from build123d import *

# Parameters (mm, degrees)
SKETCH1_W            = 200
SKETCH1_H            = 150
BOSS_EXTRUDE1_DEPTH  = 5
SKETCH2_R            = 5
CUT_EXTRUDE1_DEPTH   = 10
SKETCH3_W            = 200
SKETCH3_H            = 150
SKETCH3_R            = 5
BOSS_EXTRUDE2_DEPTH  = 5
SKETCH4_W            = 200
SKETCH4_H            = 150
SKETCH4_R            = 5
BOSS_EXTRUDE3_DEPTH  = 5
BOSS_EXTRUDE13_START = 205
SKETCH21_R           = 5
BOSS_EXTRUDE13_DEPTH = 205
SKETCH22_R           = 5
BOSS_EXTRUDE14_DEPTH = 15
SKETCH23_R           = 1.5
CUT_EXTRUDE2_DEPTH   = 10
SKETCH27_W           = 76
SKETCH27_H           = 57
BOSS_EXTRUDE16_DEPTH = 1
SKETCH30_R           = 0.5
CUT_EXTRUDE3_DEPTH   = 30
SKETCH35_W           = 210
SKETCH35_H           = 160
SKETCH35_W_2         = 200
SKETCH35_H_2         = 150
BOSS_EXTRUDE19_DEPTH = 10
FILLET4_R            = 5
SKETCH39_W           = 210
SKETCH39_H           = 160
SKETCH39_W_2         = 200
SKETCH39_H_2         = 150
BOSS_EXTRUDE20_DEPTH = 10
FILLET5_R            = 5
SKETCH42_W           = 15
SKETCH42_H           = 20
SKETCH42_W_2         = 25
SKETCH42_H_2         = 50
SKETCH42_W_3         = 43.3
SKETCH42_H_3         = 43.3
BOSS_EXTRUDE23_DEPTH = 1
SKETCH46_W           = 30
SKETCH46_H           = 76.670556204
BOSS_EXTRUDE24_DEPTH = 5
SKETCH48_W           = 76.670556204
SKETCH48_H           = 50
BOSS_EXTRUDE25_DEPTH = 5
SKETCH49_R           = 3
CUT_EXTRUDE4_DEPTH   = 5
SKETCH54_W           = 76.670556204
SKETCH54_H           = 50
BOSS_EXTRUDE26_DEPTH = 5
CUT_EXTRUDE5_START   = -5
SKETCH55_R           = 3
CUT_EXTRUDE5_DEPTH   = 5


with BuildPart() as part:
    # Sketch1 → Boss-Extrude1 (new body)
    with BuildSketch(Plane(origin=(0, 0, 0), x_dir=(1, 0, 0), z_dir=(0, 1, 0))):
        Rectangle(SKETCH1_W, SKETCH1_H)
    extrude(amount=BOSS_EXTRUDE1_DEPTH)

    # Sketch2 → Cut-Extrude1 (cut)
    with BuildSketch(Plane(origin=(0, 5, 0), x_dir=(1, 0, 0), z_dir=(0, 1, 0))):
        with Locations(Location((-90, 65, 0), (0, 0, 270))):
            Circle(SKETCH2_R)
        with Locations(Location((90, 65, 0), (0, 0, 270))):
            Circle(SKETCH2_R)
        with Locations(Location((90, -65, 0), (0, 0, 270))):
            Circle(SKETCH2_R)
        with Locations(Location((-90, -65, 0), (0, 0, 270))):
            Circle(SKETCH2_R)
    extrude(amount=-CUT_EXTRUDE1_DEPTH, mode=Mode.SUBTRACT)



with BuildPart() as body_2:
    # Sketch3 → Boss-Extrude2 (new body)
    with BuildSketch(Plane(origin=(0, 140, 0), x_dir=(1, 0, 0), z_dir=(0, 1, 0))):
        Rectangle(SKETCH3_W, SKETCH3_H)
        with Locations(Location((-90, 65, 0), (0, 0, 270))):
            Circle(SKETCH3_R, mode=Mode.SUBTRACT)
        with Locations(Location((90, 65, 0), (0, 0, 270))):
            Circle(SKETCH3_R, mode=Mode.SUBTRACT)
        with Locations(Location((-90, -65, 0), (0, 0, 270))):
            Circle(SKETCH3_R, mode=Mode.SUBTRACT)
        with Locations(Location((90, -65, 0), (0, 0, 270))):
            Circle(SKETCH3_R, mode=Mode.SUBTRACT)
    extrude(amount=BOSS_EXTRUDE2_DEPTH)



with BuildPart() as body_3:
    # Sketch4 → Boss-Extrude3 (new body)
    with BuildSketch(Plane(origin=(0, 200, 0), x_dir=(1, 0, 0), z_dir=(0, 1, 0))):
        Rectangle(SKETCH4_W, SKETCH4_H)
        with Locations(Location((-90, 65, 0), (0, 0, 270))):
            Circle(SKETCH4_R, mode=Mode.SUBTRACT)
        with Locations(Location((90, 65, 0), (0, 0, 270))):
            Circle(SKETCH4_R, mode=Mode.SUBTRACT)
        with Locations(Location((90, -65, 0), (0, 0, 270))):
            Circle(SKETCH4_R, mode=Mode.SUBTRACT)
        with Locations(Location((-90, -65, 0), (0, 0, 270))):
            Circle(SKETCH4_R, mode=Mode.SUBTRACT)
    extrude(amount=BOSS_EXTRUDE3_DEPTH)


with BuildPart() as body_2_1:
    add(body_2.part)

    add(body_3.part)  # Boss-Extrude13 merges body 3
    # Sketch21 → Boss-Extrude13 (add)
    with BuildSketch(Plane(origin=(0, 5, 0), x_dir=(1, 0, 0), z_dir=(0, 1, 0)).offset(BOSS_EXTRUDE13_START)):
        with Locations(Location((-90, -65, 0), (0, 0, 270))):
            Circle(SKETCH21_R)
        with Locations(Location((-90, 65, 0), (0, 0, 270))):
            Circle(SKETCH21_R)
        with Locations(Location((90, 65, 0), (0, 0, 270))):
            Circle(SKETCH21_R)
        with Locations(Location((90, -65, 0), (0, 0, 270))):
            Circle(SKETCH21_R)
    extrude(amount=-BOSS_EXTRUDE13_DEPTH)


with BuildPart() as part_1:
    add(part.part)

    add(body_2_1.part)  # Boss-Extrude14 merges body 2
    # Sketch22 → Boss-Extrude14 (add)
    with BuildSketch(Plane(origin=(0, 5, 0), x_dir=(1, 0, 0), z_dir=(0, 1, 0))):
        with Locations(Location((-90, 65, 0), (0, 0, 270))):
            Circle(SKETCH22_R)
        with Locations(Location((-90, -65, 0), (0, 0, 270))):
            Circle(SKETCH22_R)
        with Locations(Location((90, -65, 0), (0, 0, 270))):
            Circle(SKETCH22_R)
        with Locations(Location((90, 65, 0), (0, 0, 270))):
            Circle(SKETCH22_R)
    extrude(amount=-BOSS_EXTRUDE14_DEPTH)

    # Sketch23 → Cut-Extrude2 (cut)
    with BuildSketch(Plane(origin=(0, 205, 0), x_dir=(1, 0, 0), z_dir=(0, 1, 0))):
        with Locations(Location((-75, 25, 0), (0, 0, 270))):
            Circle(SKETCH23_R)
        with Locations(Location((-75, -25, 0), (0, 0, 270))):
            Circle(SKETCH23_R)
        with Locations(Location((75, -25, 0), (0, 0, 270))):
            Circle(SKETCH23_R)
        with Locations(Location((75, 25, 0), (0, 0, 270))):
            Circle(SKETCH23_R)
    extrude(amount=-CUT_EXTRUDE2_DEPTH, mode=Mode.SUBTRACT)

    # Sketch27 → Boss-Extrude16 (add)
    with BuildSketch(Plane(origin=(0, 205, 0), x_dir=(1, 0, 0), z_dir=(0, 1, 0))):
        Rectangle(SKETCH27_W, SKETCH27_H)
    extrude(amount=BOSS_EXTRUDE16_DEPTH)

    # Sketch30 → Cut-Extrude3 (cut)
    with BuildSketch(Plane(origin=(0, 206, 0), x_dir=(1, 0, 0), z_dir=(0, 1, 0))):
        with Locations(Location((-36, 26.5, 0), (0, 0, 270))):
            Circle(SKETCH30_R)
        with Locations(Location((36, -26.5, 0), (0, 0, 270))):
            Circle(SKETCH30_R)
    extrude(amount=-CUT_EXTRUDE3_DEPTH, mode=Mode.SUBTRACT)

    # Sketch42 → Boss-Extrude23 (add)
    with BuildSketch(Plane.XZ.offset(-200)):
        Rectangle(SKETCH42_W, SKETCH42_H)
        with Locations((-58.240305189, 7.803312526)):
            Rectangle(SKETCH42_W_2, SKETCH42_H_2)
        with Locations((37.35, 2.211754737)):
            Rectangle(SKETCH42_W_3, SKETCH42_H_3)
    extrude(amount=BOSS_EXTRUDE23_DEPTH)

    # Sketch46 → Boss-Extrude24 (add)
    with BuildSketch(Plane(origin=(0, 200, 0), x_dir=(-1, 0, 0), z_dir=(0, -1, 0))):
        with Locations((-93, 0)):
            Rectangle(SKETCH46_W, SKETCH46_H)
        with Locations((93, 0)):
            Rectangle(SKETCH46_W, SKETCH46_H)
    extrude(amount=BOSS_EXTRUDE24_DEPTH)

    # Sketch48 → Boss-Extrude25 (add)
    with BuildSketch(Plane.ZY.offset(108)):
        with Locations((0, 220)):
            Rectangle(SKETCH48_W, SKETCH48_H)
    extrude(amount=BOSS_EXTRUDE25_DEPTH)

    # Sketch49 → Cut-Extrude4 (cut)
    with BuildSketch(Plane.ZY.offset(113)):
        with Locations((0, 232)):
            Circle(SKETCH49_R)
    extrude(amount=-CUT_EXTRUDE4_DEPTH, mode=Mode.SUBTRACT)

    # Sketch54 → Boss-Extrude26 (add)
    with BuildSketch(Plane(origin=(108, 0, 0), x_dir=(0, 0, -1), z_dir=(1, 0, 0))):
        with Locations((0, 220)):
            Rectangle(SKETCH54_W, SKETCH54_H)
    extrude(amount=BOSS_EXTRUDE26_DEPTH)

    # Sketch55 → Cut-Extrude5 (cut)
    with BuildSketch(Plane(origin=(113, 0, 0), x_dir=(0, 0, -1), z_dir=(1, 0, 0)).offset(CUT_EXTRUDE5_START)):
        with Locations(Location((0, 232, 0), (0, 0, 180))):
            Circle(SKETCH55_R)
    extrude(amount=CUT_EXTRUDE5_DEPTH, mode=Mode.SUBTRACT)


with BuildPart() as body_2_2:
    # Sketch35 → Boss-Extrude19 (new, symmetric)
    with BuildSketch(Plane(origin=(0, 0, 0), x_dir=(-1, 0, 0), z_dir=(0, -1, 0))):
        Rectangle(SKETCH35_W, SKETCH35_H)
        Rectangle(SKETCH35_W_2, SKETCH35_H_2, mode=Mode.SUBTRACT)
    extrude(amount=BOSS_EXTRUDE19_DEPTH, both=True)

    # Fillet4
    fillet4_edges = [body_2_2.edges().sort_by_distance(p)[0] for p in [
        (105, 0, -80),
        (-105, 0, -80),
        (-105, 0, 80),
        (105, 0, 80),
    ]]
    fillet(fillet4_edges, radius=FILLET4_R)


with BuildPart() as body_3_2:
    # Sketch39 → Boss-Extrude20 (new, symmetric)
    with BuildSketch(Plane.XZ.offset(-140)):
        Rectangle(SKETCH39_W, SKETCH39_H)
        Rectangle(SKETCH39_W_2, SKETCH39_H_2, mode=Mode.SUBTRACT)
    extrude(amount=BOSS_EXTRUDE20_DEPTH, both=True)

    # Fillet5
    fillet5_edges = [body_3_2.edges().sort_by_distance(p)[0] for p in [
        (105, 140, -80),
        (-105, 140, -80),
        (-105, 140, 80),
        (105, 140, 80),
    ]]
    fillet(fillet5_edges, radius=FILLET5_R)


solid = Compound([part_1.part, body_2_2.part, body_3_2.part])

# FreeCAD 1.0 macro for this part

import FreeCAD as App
import Part
import Sketcher


def edges_at(feature, points):
    """Names of the edges that pass closest to the given points."""
    edges = feature.Shape.Edges
    near = lambda p: min(range(len(edges)), key=lambda i: edges[i].distToShape(Part.Vertex(*p))[0])
    return sorted({f"Edge{near(p) + 1}" for p in points})


def add_polygon(sketch, points):
    """Adds a closed chain of lines whose ends are joined by coincident constraints."""
    first, n = sketch.GeometryCount, len(points)
    for a, b in zip(points, points[1:] + points[:1]):
        sketch.addGeometry(Part.LineSegment(App.Vector(*a, 0), App.Vector(*b, 0)), False)
    for i in range(n):
        sketch.addConstraint(Sketcher.Constraint("Coincident", first + i, 2, first + (i + 1) % n, 1))

doc = App.newDocument("Part")
body = doc.addObject("PartDesign::Body", "Body")

# Sketch on XZ plane
sketch1 = doc.addObject("Sketcher::SketchObject", "Sketch")
body.addObject(sketch1)
sketch1.AttachmentSupport = (doc.XZ_Plane, [""])
sketch1.MapMode = "FlatFace"
add_polygon(sketch1, [(-100, -75), (-100, 75), (100, 75), (100, -75)])  # lines 0-3
sketch1.addConstraint([
    Sketcher.Constraint("Vertical", 0),
    Sketcher.Constraint("Horizontal", 1),
    Sketcher.Constraint("Vertical", 2),
    Sketcher.Constraint("Horizontal", 3),
    Sketcher.Constraint("Symmetric", 0, 2, 2, 2, -1, 1),
    Sketcher.Constraint("DistanceX", 1, 1, 1, 2, 200.0),
    Sketcher.Constraint("DistanceY", 0, 1, 0, 2, 150.0),
])
pad1 = doc.addObject("PartDesign::Pad", "Pad")
body.addObject(pad1)
pad1.Profile = sketch1
pad1.Length = 5
pad1.Reversed = True

# Sketch on XZ plane
sketch2 = doc.addObject("Sketcher::SketchObject", "Sketch001")
body.addObject(sketch2)
sketch2.AttachmentSupport = (doc.XZ_Plane, [""])
sketch2.MapMode = "FlatFace"
sketch2.AttachmentOffset = App.Placement(App.Vector(0, 0, -5), App.Rotation())
sketch2.addGeometry([
    Part.Circle(App.Vector(-90, -65, 0), App.Vector(0, 0, 1), 5),
    Part.Circle(App.Vector(90, -65, 0), App.Vector(0, 0, 1), 5),
    Part.Circle(App.Vector(90, 65, 0), App.Vector(0, 0, 1), 5),
    Part.Circle(App.Vector(-90, 65, 0), App.Vector(0, 0, 1), 5),
], False)
sketch2.addConstraint([
    Sketcher.Constraint("Equal", 0, 1),
    Sketcher.Constraint("Equal", 1, 2),
    Sketcher.Constraint("Equal", 2, 3),
    Sketcher.Constraint("Symmetric", 0, 3, 2, 3, -1, 1),
    Sketcher.Constraint("Symmetric", 1, 3, 3, 3, -1, 1),
    Sketcher.Constraint("Symmetric", 0, 3, 1, 3, -2),
    Sketcher.Constraint("Diameter", 0, 10.0),
    Sketcher.Constraint("DistanceX", 0, 3, -1, 1, 90.0),
    Sketcher.Constraint("DistanceY", 0, 3, -1, 1, 65.0),
])
pocket1 = doc.addObject("PartDesign::Pocket", "Pocket")
body.addObject(pocket1)
pocket1.Profile = sketch2
pocket1.Length = 10
pocket1.Reversed = True
body2 = doc.addObject("PartDesign::Body", "Body001")

# Sketch on XZ plane
sketch3 = doc.addObject("Sketcher::SketchObject", "Sketch002")
body2.addObject(sketch3)
sketch3.AttachmentSupport = (doc.getObject("XZ_Plane001"), [""])
sketch3.MapMode = "FlatFace"
sketch3.AttachmentOffset = App.Placement(App.Vector(0, 0, -140), App.Rotation())
add_polygon(sketch3, [(-100, -75), (-100, 75), (100, 75), (100, -75)])  # lines 0-3
sketch3.addGeometry(Part.Circle(App.Vector(-90, 65, 0), App.Vector(0, 0, 1), 5), False)  # 4
sketch3.addGeometry(Part.Circle(App.Vector(90, 65, 0), App.Vector(0, 0, 1), 5), False)  # 5
sketch3.addGeometry(Part.Circle(App.Vector(-90, -65, 0), App.Vector(0, 0, 1), 5), False)  # 6
sketch3.addGeometry(Part.Circle(App.Vector(90, -65, 0), App.Vector(0, 0, 1), 5), False)  # 7
sketch3.addConstraint([
    Sketcher.Constraint("Vertical", 0),
    Sketcher.Constraint("Horizontal", 1),
    Sketcher.Constraint("Vertical", 2),
    Sketcher.Constraint("Horizontal", 3),
    Sketcher.Constraint("Equal", 4, 5),
    Sketcher.Constraint("Equal", 5, 6),
    Sketcher.Constraint("Equal", 6, 7),
    Sketcher.Constraint("Symmetric", 5, 3, 6, 3, -1, 1),
    Sketcher.Constraint("Symmetric", 4, 3, 7, 3, -1, 1),
    Sketcher.Constraint("Symmetric", 0, 2, 2, 2, -1, 1),
    Sketcher.Constraint("Symmetric", 4, 3, 5, 3, -2),
    Sketcher.Constraint("Diameter", 4, 10.0),
    Sketcher.Constraint("DistanceX", 1, 1, 1, 2, 200.0),
    Sketcher.Constraint("DistanceY", 0, 1, 0, 2, 150.0),
    Sketcher.Constraint("DistanceX", 4, 3, -1, 1, 90.0),
    Sketcher.Constraint("DistanceY", -1, 1, 4, 3, 65.0),
])
pad2 = doc.addObject("PartDesign::Pad", "Pad001")
body2.addObject(pad2)
pad2.Profile = sketch3
pad2.Length = 5
pad2.Reversed = True
body3 = doc.addObject("PartDesign::Body", "Body002")

# Sketch on XZ plane
sketch4 = doc.addObject("Sketcher::SketchObject", "Sketch003")
body3.addObject(sketch4)
sketch4.AttachmentSupport = (doc.getObject("XZ_Plane002"), [""])
sketch4.MapMode = "FlatFace"
sketch4.AttachmentOffset = App.Placement(App.Vector(0, 0, -200), App.Rotation())
add_polygon(sketch4, [(-100, -75), (-100, 75), (100, 75), (100, -75)])  # lines 0-3
sketch4.addGeometry(Part.Circle(App.Vector(-90, 65, 0), App.Vector(0, 0, 1), 5), False)  # 4
sketch4.addGeometry(Part.Circle(App.Vector(90, 65, 0), App.Vector(0, 0, 1), 5), False)  # 5
sketch4.addGeometry(Part.Circle(App.Vector(-90, -65, 0), App.Vector(0, 0, 1), 5), False)  # 6
sketch4.addGeometry(Part.Circle(App.Vector(90, -65, 0), App.Vector(0, 0, 1), 5), False)  # 7
sketch4.addConstraint([
    Sketcher.Constraint("Vertical", 0),
    Sketcher.Constraint("Horizontal", 1),
    Sketcher.Constraint("Vertical", 2),
    Sketcher.Constraint("Horizontal", 3),
    Sketcher.Constraint("Equal", 4, 5),
    Sketcher.Constraint("Equal", 5, 6),
    Sketcher.Constraint("Equal", 6, 7),
    Sketcher.Constraint("Symmetric", 5, 3, 6, 3, -1, 1),
    Sketcher.Constraint("Symmetric", 4, 3, 7, 3, -1, 1),
    Sketcher.Constraint("Symmetric", 0, 2, 2, 2, -1, 1),
    Sketcher.Constraint("Symmetric", 4, 3, 5, 3, -2),
    Sketcher.Constraint("Diameter", 4, 10.0),
    Sketcher.Constraint("DistanceX", 1, 1, 1, 2, 200.0),
    Sketcher.Constraint("DistanceY", 0, 1, 0, 2, 150.0),
    Sketcher.Constraint("DistanceX", 4, 3, -1, 1, 90.0),
    Sketcher.Constraint("DistanceY", -1, 1, 4, 3, 65.0),
])
pad3 = doc.addObject("PartDesign::Pad", "Pad002")
body3.addObject(pad3)
pad3.Profile = sketch4
pad3.Length = 5
pad3.Reversed = True
body2.AllowCompound = True
doc.recompute()

boolean = doc.addObject("PartDesign::Boolean", "Boolean")
body2.addObject(boolean)
boolean.Type = "Fuse"
boolean.addObjects([body3])

# Sketch on XZ plane
sketch5 = doc.addObject("Sketcher::SketchObject", "Sketch004")
body2.addObject(sketch5)
sketch5.AttachmentSupport = (doc.getObject("XZ_Plane001"), [""])
sketch5.MapMode = "FlatFace"
sketch5.AttachmentOffset = App.Placement(App.Vector(0, 0, -210), App.Rotation())
sketch5.addGeometry([
    Part.Circle(App.Vector(-90, 65, 0), App.Vector(0, 0, 1), 5),
    Part.Circle(App.Vector(-90, -65, 0), App.Vector(0, 0, 1), 5),
    Part.Circle(App.Vector(90, -65, 0), App.Vector(0, 0, 1), 5),
    Part.Circle(App.Vector(90, 65, 0), App.Vector(0, 0, 1), 5),
], False)
sketch5.addConstraint([
    Sketcher.Constraint("Equal", 0, 1),
    Sketcher.Constraint("Equal", 1, 2),
    Sketcher.Constraint("Equal", 2, 3),
    Sketcher.Constraint("Symmetric", 0, 3, 2, 3, -1, 1),
    Sketcher.Constraint("Symmetric", 1, 3, 3, 3, -1, 1),
    Sketcher.Constraint("Symmetric", 1, 3, 2, 3, -2),
    Sketcher.Constraint("Diameter", 0, 10.0),
    Sketcher.Constraint("DistanceX", 0, 3, -1, 1, 90.0),
    Sketcher.Constraint("DistanceY", -1, 1, 0, 3, 65.0),
])
pad4 = doc.addObject("PartDesign::Pad", "Pad003")
body2.addObject(pad4)
pad4.Profile = sketch5
pad4.Length = 205
body.AllowCompound = True
doc.recompute()

boolean2 = doc.addObject("PartDesign::Boolean", "Boolean001")
body.addObject(boolean2)
boolean2.Type = "Fuse"
boolean2.addObjects([body2])

# Sketch on XZ plane
sketch6 = doc.addObject("Sketcher::SketchObject", "Sketch005")
body.addObject(sketch6)
sketch6.AttachmentSupport = (doc.XZ_Plane, [""])
sketch6.MapMode = "FlatFace"
sketch6.AttachmentOffset = App.Placement(App.Vector(0, 0, -5), App.Rotation())
sketch6.addGeometry([
    Part.Circle(App.Vector(-90, -65, 0), App.Vector(0, 0, 1), 5),
    Part.Circle(App.Vector(-90, 65, 0), App.Vector(0, 0, 1), 5),
    Part.Circle(App.Vector(90, 65, 0), App.Vector(0, 0, 1), 5),
    Part.Circle(App.Vector(90, -65, 0), App.Vector(0, 0, 1), 5),
], False)
sketch6.addConstraint([
    Sketcher.Constraint("Equal", 0, 1),
    Sketcher.Constraint("Equal", 1, 2),
    Sketcher.Constraint("Equal", 2, 3),
    Sketcher.Constraint("Symmetric", 0, 3, 2, 3, -1, 1),
    Sketcher.Constraint("Symmetric", 1, 3, 3, 3, -1, 1),
    Sketcher.Constraint("Symmetric", 1, 3, 2, 3, -2),
    Sketcher.Constraint("Diameter", 0, 10.0),
    Sketcher.Constraint("DistanceX", 0, 3, -1, 1, 90.0),
    Sketcher.Constraint("DistanceY", 0, 3, -1, 1, 65.0),
])
pad5 = doc.addObject("PartDesign::Pad", "Pad004")
body.addObject(pad5)
pad5.Profile = sketch6
pad5.Length = 15

# Sketch on XZ plane
sketch7 = doc.addObject("Sketcher::SketchObject", "Sketch006")
body.addObject(sketch7)
sketch7.AttachmentSupport = (doc.XZ_Plane, [""])
sketch7.MapMode = "FlatFace"
sketch7.AttachmentOffset = App.Placement(App.Vector(0, 0, -205), App.Rotation())
sketch7.addGeometry([
    Part.Circle(App.Vector(-75, -25, 0), App.Vector(0, 0, 1), 1.5),
    Part.Circle(App.Vector(-75, 25, 0), App.Vector(0, 0, 1), 1.5),
    Part.Circle(App.Vector(75, 25, 0), App.Vector(0, 0, 1), 1.5),
    Part.Circle(App.Vector(75, -25, 0), App.Vector(0, 0, 1), 1.5),
], False)
sketch7.addConstraint([
    Sketcher.Constraint("Equal", 0, 1),
    Sketcher.Constraint("Equal", 1, 2),
    Sketcher.Constraint("Equal", 2, 3),
    Sketcher.Constraint("Symmetric", 0, 3, 2, 3, -1, 1),
    Sketcher.Constraint("Symmetric", 1, 3, 3, 3, -1, 1),
    Sketcher.Constraint("Symmetric", 1, 3, 2, 3, -2),
    Sketcher.Constraint("Diameter", 0, 3.0),
    Sketcher.Constraint("DistanceX", 0, 3, -1, 1, 75.0),
    Sketcher.Constraint("DistanceY", 0, 3, -1, 1, 25.0),
])
pocket2 = doc.addObject("PartDesign::Pocket", "Pocket001")
body.addObject(pocket2)
pocket2.Profile = sketch7
pocket2.Length = 10
pocket2.Reversed = True

# Sketch on XZ plane
sketch8 = doc.addObject("Sketcher::SketchObject", "Sketch007")
body.addObject(sketch8)
sketch8.AttachmentSupport = (doc.XZ_Plane, [""])
sketch8.MapMode = "FlatFace"
sketch8.AttachmentOffset = App.Placement(App.Vector(0, 0, -205), App.Rotation())
add_polygon(sketch8, [(-38, -28.5), (-38, 28.5), (38, 28.5), (38, -28.5)])  # lines 0-3
sketch8.addConstraint([
    Sketcher.Constraint("Vertical", 0),
    Sketcher.Constraint("Horizontal", 1),
    Sketcher.Constraint("Vertical", 2),
    Sketcher.Constraint("Horizontal", 3),
    Sketcher.Constraint("Symmetric", 0, 2, 2, 2, -1, 1),
    Sketcher.Constraint("DistanceX", 1, 1, 1, 2, 76.0),
    Sketcher.Constraint("DistanceY", 0, 1, 0, 2, 57.0),
])
pad6 = doc.addObject("PartDesign::Pad", "Pad005")
body.addObject(pad6)
pad6.Profile = sketch8
pad6.Length = 1
pad6.Reversed = True

# Sketch on XZ plane
sketch9 = doc.addObject("Sketcher::SketchObject", "Sketch008")
body.addObject(sketch9)
sketch9.AttachmentSupport = (doc.XZ_Plane, [""])
sketch9.MapMode = "FlatFace"
sketch9.AttachmentOffset = App.Placement(App.Vector(0, 0, -206), App.Rotation())
sketch9.addGeometry([
    Part.Circle(App.Vector(-36, -26.5, 0), App.Vector(0, 0, 1), 0.5),
    Part.Circle(App.Vector(36, 26.5, 0), App.Vector(0, 0, 1), 0.5),
], False)
sketch9.addConstraint([
    Sketcher.Constraint("Equal", 0, 1),
    Sketcher.Constraint("Symmetric", 0, 3, 1, 3, -1, 1),
    Sketcher.Constraint("Diameter", 0, 1.0),
    Sketcher.Constraint("DistanceX", 0, 3, -1, 1, 36.0),
    Sketcher.Constraint("DistanceY", 0, 3, 1, 3, 53.0),
])
pocket3 = doc.addObject("PartDesign::Pocket", "Pocket002")
body.addObject(pocket3)
pocket3.Profile = sketch9
pocket3.Length = 30
pocket3.Reversed = True

# Sketch on XZ plane
sketch10 = doc.addObject("Sketcher::SketchObject", "Sketch009")
body.addObject(sketch10)
sketch10.AttachmentSupport = (doc.XZ_Plane, [""])
sketch10.MapMode = "FlatFace"
sketch10.AttachmentOffset = App.Placement(App.Vector(0, 0, -200), App.Rotation())
add_polygon(sketch10, [(-7.5, 10), (-7.5, -10), (7.5, -10), (7.5, 10)])  # lines 0-3
add_polygon(sketch10, [(-70.740305, 32.803313), (-70.740305, -17.196687), (-45.740305, -17.196687), (-45.740305, 32.803313)])  # lines 4-7
add_polygon(sketch10, [(15.7, 23.861755), (15.7, -19.438245), (59, -19.438245), (59, 23.861755)])  # lines 8-11
sketch10.addConstraint([
    Sketcher.Constraint("Vertical", 0),
    Sketcher.Constraint("Horizontal", 1),
    Sketcher.Constraint("Vertical", 2),
    Sketcher.Constraint("Horizontal", 3),
    Sketcher.Constraint("Vertical", 4),
    Sketcher.Constraint("Horizontal", 5),
    Sketcher.Constraint("Vertical", 6),
    Sketcher.Constraint("Horizontal", 7),
    Sketcher.Constraint("Vertical", 8),
    Sketcher.Constraint("Horizontal", 9),
    Sketcher.Constraint("Vertical", 10),
    Sketcher.Constraint("Horizontal", 11),
    Sketcher.Constraint("Symmetric", 0, 2, 2, 2, -1, 1),
    Sketcher.Constraint("Equal", 11, 8),
    Sketcher.Constraint("DistanceX", 1, 1, 1, 2, 15.0),
    Sketcher.Constraint("DistanceX", 5, 1, 5, 2, 25.0),
    Sketcher.Constraint("DistanceY", 0, 2, 0, 1, 20.0),
    Sketcher.Constraint("DistanceY", 4, 2, 4, 1, 50.0),
    Sketcher.Constraint("DistanceX", 9, 1, 9, 2, 43.3),
    Sketcher.Constraint("DistanceX", -1, 1, 9, 2, 59.0),
    Sketcher.Constraint("DistanceX", 4, 2, -1, 1, 70.740305),
    Sketcher.Constraint("DistanceY", 4, 2, -1, 1, 17.196687),
    Sketcher.Constraint("DistanceY", 8, 2, -1, 1, 19.438245),
])
pad7 = doc.addObject("PartDesign::Pad", "Pad006")
body.addObject(pad7)
pad7.Profile = sketch10
pad7.Length = 1

# Sketch on XZ plane
sketch11 = doc.addObject("Sketcher::SketchObject", "Sketch010")
body.addObject(sketch11)
sketch11.AttachmentSupport = (doc.XZ_Plane, [""])
sketch11.MapMode = "FlatFace"
sketch11.AttachmentOffset = App.Placement(App.Vector(0, 0, -200), App.Rotation())
add_polygon(sketch11, [(108, -38.335278), (108, 38.335278), (78, 38.335278), (78, -38.335278)])  # lines 0-3
add_polygon(sketch11, [(-78, -38.335278), (-78, 38.335278), (-108, 38.335278), (-108, -38.335278)])  # lines 4-7
sketch11.addConstraint([
    Sketcher.Constraint("Vertical", 0),
    Sketcher.Constraint("Horizontal", 1),
    Sketcher.Constraint("Vertical", 2),
    Sketcher.Constraint("Horizontal", 3),
    Sketcher.Constraint("Vertical", 4),
    Sketcher.Constraint("Horizontal", 5),
    Sketcher.Constraint("Vertical", 6),
    Sketcher.Constraint("Horizontal", 7),
    Sketcher.Constraint("Symmetric", 2, 2, 4, 2, -1, 1),
    Sketcher.Constraint("Symmetric", 0, 2, 6, 2, -1, 1),
    Sketcher.Constraint("Horizontal", 1, 2, 4, 2),
    Sketcher.Constraint("DistanceX", 1, 2, 1, 1, 30.0),
    Sketcher.Constraint("DistanceX", -1, 1, 0, 2, 108.0),
    Sketcher.Constraint("DistanceY", 0, 1, 0, 2, 76.670556),
])
pad8 = doc.addObject("PartDesign::Pad", "Pad007")
body.addObject(pad8)
pad8.Profile = sketch11
pad8.Length = 5

# Sketch on YZ plane
sketch12 = doc.addObject("Sketcher::SketchObject", "Sketch011")
body.addObject(sketch12)
sketch12.AttachmentSupport = (doc.YZ_Plane, [""])
sketch12.MapMode = "FlatFace"
sketch12.AttachmentOffset = App.Placement(App.Vector(0, 0, -108), App.Rotation())
add_polygon(sketch12, [(245, -38.335278), (195, -38.335278), (195, 38.335278), (245, 38.335278)])  # lines 0-3
sketch12.addConstraint([
    Sketcher.Constraint("Horizontal", 0),
    Sketcher.Constraint("Vertical", 1),
    Sketcher.Constraint("Horizontal", 2),
    Sketcher.Constraint("Vertical", 3),
    Sketcher.Constraint("DistanceX", 0, 2, 0, 1, 50.0),
    Sketcher.Constraint("DistanceX", -1, 1, 0, 2, 195.0),
    Sketcher.Constraint("DistanceY", 1, 1, 1, 2, 76.670556),
    Sketcher.Constraint("DistanceY", 0, 2, -1, 1, 38.335278),
])
pad9 = doc.addObject("PartDesign::Pad", "Pad008")
body.addObject(pad9)
pad9.Profile = sketch12
pad9.Length = 5
pad9.Reversed = True

# Sketch on YZ plane
sketch13 = doc.addObject("Sketcher::SketchObject", "Sketch012")
body.addObject(sketch13)
sketch13.AttachmentSupport = (doc.YZ_Plane, [""])
sketch13.MapMode = "FlatFace"
sketch13.AttachmentOffset = App.Placement(App.Vector(0, 0, -113), App.Rotation())
sketch13.addGeometry(Part.Circle(App.Vector(232, 0, 0), App.Vector(0, 0, 1), 3), False)
sketch13.addConstraint([
    Sketcher.Constraint("PointOnObject", 0, 3, -1),
    Sketcher.Constraint("Diameter", 0, 6.0),
    Sketcher.Constraint("DistanceX", -1, 1, 0, 3, 232.0),
])
pocket4 = doc.addObject("PartDesign::Pocket", "Pocket003")
body.addObject(pocket4)
pocket4.Profile = sketch13
pocket4.Length = 5
pocket4.Reversed = True

# Sketch on YZ plane
sketch14 = doc.addObject("Sketcher::SketchObject", "Sketch013")
body.addObject(sketch14)
sketch14.AttachmentSupport = (doc.YZ_Plane, [""])
sketch14.MapMode = "FlatFace"
sketch14.AttachmentOffset = App.Placement(App.Vector(0, 0, 108), App.Rotation())
add_polygon(sketch14, [(245, 38.335278), (195, 38.335278), (195, -38.335278), (245, -38.335278)])  # lines 0-3
sketch14.addConstraint([
    Sketcher.Constraint("Horizontal", 0),
    Sketcher.Constraint("Vertical", 1),
    Sketcher.Constraint("Horizontal", 2),
    Sketcher.Constraint("Vertical", 3),
    Sketcher.Constraint("DistanceX", 0, 2, 0, 1, 50.0),
    Sketcher.Constraint("DistanceX", -1, 1, 0, 2, 195.0),
    Sketcher.Constraint("DistanceY", 1, 2, 1, 1, 76.670556),
    Sketcher.Constraint("DistanceY", -1, 1, 0, 2, 38.335278),
])
pad10 = doc.addObject("PartDesign::Pad", "Pad009")
body.addObject(pad10)
pad10.Profile = sketch14
pad10.Length = 5

# Sketch on YZ plane
sketch15 = doc.addObject("Sketcher::SketchObject", "Sketch014")
body.addObject(sketch15)
sketch15.AttachmentSupport = (doc.YZ_Plane, [""])
sketch15.MapMode = "FlatFace"
sketch15.AttachmentOffset = App.Placement(App.Vector(0, 0, 108), App.Rotation())
sketch15.addGeometry(Part.Circle(App.Vector(232, 0, 0), App.Vector(0, 0, 1), 3), False)
sketch15.addConstraint([
    Sketcher.Constraint("PointOnObject", 0, 3, -1),
    Sketcher.Constraint("Diameter", 0, 6.0),
    Sketcher.Constraint("DistanceX", -1, 1, 0, 3, 232.0),
])
pocket5 = doc.addObject("PartDesign::Pocket", "Pocket004")
body.addObject(pocket5)
pocket5.Profile = sketch15
pocket5.Length = 5
pocket5.Reversed = True
body4 = doc.addObject("PartDesign::Body", "Body003")

# Sketch on XZ plane
sketch16 = doc.addObject("Sketcher::SketchObject", "Sketch015")
body4.addObject(sketch16)
sketch16.AttachmentSupport = (doc.getObject("XZ_Plane003"), [""])
sketch16.MapMode = "FlatFace"
add_polygon(sketch16, [(105, -80), (105, 80), (-105, 80), (-105, -80)])  # lines 0-3
add_polygon(sketch16, [(-100, 75), (100, 75), (100, -75), (-100, -75)])  # lines 4-7
sketch16.addConstraint([
    Sketcher.Constraint("Vertical", 0),
    Sketcher.Constraint("Horizontal", 1),
    Sketcher.Constraint("Vertical", 2),
    Sketcher.Constraint("Horizontal", 3),
    Sketcher.Constraint("Horizontal", 4),
    Sketcher.Constraint("Vertical", 5),
    Sketcher.Constraint("Horizontal", 6),
    Sketcher.Constraint("Vertical", 7),
    Sketcher.Constraint("Symmetric", 0, 2, 2, 2, -1, 1),
    Sketcher.Constraint("Symmetric", 4, 2, 6, 2, -1, 1),
    Sketcher.Constraint("DistanceX", 1, 2, 1, 1, 210.0),
    Sketcher.Constraint("DistanceX", 4, 1, 4, 2, 200.0),
    Sketcher.Constraint("DistanceY", 0, 1, 0, 2, 160.0),
    Sketcher.Constraint("DistanceY", 5, 2, 5, 1, 150.0),
])
pad11 = doc.addObject("PartDesign::Pad", "Pad010")
body4.addObject(pad11)
pad11.Profile = sketch16
pad11.Length = 20
pad11.Midplane = True
doc.recompute()

fillet = doc.addObject("PartDesign::Fillet", "Fillet")
body4.addObject(fillet)
fillet.Base = (pad11, edges_at(pad11, [
    (105, 0, -80),
    (-105, 0, -80),
    (-105, 0, 80),
    (105, 0, 80),
]))
fillet.Radius = 5
body5 = doc.addObject("PartDesign::Body", "Body004")

# Sketch on XZ plane
sketch17 = doc.addObject("Sketcher::SketchObject", "Sketch016")
body5.addObject(sketch17)
sketch17.AttachmentSupport = (doc.getObject("XZ_Plane004"), [""])
sketch17.MapMode = "FlatFace"
sketch17.AttachmentOffset = App.Placement(App.Vector(0, 0, -140), App.Rotation())
add_polygon(sketch17, [(-105, 80), (-105, -80), (105, -80), (105, 80)])  # lines 0-3
add_polygon(sketch17, [(100, -75), (-100, -75), (-100, 75), (100, 75)])  # lines 4-7
sketch17.addConstraint([
    Sketcher.Constraint("Vertical", 0),
    Sketcher.Constraint("Horizontal", 1),
    Sketcher.Constraint("Vertical", 2),
    Sketcher.Constraint("Horizontal", 3),
    Sketcher.Constraint("Horizontal", 4),
    Sketcher.Constraint("Vertical", 5),
    Sketcher.Constraint("Horizontal", 6),
    Sketcher.Constraint("Vertical", 7),
    Sketcher.Constraint("Symmetric", 0, 2, 2, 2, -1, 1),
    Sketcher.Constraint("Symmetric", 4, 2, 6, 2, -1, 1),
    Sketcher.Constraint("DistanceX", 1, 1, 1, 2, 210.0),
    Sketcher.Constraint("DistanceX", 4, 2, 4, 1, 200.0),
    Sketcher.Constraint("DistanceY", 0, 2, 0, 1, 160.0),
    Sketcher.Constraint("DistanceY", 5, 1, 5, 2, 150.0),
])
pad12 = doc.addObject("PartDesign::Pad", "Pad011")
body5.addObject(pad12)
pad12.Profile = sketch17
pad12.Length = 20
pad12.Midplane = True
doc.recompute()

fillet2 = doc.addObject("PartDesign::Fillet", "Fillet001")
body5.addObject(fillet2)
fillet2.Base = (pad12, edges_at(pad12, [
    (105, 140, -80),
    (-105, 140, -80),
    (-105, 140, 80),
    (105, 140, 80),
]))
fillet2.Radius = 5

doc.recompute()
